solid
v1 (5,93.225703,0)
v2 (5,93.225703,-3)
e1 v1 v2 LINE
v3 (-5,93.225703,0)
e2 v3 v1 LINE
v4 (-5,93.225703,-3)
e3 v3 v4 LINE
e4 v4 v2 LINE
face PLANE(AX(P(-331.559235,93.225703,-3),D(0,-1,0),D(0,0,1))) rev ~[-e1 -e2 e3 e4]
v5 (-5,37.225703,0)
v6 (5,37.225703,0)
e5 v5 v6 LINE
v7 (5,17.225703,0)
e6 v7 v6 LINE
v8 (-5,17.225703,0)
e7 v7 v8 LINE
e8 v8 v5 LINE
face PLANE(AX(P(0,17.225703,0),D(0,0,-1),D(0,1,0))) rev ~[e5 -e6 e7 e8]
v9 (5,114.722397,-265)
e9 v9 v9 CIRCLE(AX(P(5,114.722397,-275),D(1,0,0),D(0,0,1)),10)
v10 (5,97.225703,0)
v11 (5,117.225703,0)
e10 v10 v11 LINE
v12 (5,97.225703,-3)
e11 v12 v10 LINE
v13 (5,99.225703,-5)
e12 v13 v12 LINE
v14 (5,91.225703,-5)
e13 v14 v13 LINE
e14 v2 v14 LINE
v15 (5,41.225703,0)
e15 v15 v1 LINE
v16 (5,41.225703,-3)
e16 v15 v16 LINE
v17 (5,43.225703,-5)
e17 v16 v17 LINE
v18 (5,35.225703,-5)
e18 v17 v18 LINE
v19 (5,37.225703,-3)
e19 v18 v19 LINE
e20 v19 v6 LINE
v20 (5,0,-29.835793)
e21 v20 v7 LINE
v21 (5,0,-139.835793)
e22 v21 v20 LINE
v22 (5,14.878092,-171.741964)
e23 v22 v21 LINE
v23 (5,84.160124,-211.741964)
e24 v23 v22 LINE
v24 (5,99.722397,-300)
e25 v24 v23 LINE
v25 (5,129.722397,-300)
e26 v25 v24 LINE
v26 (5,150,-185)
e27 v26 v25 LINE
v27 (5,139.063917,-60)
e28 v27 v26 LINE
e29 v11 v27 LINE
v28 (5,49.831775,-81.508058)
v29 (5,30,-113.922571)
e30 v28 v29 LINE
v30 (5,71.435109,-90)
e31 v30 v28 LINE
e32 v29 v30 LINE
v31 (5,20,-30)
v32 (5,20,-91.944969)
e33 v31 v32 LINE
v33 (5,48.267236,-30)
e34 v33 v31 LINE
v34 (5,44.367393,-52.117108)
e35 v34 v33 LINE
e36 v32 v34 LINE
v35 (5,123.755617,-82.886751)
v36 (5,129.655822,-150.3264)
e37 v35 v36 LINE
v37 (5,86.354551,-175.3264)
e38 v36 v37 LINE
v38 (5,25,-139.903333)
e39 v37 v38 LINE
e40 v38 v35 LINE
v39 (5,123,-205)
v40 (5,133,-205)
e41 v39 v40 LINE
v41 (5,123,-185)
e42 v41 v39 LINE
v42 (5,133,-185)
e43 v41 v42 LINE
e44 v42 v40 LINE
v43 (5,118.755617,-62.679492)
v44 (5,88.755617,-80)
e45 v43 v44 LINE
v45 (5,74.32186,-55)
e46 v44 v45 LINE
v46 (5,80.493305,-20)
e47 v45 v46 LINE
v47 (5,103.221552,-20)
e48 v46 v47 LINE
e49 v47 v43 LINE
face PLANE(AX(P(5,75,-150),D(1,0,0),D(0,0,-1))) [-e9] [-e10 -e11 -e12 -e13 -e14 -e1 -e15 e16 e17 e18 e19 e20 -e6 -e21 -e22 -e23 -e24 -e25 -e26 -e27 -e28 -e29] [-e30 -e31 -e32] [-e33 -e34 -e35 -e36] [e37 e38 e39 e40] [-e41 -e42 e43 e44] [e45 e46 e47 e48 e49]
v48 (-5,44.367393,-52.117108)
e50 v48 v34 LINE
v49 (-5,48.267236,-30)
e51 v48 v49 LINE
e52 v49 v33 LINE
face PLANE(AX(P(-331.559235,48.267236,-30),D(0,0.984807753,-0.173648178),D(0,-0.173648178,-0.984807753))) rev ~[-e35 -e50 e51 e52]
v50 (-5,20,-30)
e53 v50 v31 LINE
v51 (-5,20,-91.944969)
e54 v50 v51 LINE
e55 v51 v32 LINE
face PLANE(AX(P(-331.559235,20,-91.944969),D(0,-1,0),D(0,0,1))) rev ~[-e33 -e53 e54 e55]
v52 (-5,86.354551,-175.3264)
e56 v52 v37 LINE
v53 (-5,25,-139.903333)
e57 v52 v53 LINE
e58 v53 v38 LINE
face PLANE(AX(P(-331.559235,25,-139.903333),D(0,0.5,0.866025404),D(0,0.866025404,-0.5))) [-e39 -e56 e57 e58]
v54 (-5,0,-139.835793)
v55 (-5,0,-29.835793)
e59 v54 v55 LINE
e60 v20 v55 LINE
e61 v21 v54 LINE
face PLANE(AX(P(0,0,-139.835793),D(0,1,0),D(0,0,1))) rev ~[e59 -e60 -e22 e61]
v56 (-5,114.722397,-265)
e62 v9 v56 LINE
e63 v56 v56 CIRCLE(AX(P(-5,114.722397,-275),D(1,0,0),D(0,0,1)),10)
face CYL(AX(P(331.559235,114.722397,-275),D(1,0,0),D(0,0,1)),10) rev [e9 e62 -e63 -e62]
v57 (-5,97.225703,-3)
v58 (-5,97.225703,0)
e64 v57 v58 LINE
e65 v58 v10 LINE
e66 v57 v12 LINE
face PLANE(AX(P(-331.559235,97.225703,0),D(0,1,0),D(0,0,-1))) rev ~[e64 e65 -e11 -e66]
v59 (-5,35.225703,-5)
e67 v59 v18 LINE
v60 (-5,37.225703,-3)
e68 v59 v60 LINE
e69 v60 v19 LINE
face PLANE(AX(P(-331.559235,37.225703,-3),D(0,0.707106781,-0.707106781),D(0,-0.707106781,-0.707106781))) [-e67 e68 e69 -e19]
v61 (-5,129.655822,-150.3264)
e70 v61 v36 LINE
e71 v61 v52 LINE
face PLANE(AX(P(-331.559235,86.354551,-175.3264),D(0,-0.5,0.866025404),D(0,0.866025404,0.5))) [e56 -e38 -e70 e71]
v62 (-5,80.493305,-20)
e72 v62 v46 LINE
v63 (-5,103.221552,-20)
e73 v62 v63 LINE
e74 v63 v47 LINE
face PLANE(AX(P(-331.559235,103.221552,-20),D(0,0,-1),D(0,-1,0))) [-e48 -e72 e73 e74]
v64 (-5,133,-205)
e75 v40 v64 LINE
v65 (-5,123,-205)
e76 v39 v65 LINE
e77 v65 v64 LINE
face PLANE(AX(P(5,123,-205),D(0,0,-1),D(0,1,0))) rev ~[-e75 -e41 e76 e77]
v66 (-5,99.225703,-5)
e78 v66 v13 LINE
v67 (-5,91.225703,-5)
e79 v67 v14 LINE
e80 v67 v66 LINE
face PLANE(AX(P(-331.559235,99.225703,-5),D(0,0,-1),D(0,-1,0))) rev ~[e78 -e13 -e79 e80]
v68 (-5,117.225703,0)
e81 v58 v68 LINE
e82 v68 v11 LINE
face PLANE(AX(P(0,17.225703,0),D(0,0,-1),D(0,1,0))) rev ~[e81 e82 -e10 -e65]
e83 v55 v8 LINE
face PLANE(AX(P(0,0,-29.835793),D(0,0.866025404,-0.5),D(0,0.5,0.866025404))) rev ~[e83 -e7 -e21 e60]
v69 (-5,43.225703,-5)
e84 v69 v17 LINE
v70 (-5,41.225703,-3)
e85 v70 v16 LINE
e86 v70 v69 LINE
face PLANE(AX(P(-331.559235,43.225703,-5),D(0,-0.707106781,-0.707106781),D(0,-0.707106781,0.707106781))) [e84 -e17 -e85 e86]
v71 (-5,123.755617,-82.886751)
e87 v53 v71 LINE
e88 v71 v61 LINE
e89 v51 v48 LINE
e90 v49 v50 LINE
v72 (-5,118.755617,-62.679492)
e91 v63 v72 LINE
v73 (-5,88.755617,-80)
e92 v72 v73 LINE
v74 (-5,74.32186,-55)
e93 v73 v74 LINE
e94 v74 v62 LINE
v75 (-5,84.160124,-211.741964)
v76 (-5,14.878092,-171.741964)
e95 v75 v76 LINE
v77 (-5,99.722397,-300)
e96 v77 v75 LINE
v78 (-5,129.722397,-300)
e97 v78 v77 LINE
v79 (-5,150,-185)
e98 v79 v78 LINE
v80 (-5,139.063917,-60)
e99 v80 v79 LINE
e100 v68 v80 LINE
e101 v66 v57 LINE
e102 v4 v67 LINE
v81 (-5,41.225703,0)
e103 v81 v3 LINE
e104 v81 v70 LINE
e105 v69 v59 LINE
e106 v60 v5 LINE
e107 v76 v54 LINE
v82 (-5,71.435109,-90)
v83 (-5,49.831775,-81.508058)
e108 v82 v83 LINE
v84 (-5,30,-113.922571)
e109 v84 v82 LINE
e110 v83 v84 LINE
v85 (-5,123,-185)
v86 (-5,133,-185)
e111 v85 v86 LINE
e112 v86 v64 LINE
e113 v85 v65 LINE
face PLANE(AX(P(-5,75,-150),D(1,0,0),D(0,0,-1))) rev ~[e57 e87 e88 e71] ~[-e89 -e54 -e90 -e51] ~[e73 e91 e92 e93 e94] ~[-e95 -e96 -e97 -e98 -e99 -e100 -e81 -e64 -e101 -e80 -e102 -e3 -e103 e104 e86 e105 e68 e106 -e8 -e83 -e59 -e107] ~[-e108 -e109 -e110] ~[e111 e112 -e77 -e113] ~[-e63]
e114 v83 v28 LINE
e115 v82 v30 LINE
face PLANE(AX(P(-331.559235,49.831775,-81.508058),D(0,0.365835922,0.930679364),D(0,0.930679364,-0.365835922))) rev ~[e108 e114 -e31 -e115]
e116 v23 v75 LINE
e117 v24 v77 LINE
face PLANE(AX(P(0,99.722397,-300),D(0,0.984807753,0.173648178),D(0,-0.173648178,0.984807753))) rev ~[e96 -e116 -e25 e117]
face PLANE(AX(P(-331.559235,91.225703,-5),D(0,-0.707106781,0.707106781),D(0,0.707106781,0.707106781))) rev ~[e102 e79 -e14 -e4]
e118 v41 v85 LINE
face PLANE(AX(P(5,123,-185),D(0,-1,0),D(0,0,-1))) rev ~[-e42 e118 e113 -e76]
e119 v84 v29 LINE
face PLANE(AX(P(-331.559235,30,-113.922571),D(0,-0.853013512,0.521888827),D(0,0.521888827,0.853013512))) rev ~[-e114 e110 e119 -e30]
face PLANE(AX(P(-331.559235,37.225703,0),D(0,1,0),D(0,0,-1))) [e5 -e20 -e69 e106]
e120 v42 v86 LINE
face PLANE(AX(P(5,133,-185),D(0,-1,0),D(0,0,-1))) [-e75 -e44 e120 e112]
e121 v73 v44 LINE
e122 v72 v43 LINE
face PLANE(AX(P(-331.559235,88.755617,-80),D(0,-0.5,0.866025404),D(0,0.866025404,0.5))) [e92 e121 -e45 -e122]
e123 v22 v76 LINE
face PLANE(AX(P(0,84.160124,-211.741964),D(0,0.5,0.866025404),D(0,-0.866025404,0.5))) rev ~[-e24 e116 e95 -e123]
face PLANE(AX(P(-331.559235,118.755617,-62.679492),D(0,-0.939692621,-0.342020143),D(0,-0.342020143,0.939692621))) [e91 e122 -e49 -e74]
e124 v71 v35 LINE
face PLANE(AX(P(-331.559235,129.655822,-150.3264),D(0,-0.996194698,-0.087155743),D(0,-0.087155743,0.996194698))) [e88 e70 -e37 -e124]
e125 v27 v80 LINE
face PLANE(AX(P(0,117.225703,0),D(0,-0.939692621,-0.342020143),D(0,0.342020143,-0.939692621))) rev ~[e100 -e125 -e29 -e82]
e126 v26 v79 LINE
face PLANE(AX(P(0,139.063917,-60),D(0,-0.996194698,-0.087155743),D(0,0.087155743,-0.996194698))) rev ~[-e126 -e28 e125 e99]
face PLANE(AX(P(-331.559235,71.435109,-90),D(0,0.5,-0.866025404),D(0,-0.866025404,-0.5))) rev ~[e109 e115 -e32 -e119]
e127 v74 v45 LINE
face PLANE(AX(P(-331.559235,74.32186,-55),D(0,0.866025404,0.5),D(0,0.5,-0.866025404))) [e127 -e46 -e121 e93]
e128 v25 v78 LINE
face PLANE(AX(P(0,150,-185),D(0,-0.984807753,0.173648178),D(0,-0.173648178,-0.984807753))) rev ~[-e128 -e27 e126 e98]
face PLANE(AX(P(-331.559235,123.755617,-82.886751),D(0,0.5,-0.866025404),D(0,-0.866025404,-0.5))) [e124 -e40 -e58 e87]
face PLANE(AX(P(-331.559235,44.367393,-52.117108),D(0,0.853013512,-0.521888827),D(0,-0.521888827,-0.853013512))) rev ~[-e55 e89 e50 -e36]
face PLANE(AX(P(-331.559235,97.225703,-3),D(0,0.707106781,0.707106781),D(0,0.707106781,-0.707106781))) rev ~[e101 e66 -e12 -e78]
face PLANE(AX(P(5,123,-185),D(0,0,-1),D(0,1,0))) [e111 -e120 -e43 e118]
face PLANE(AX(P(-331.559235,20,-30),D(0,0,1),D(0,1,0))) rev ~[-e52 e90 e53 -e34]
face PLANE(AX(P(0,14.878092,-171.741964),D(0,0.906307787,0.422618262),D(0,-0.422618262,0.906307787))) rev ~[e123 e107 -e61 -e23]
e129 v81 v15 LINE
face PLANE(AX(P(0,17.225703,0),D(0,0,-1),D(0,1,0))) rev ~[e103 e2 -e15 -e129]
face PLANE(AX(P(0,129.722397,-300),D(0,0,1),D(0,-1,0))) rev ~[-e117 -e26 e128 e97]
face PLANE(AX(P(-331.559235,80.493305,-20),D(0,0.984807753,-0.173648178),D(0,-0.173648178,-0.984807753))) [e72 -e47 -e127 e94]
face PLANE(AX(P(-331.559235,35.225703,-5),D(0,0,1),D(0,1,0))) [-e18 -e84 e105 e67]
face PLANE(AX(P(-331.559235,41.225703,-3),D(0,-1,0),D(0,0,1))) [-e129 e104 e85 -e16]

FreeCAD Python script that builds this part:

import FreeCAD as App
import Part
import Sketcher

V = App.Vector
Q = App.Units.Quantity

doc = App.newDocument("Part")
body = doc.addObject("PartDesign::Body", "Body")

sketch1 = doc.addObject("Sketcher::SketchObject", "Sketch")
body.addObject(sketch1)
sketch1.AttachmentSupport = (doc.YZ_Plane, [""])
sketch1.MapMode = "FlatFace"
sketch1.addGeometry([
    Part.LineSegment(V(150, 0, 0), V(0, 0, 0)),
    Part.LineSegment(V(0, 0, 0), V(0, -300, 0)),
    Part.LineSegment(V(0, -300, 0), V(150, -300, 0)),
    Part.LineSegment(V(150, -300, 0), V(150, 0, 0)),
], False)
sketch1.addConstraint([
    Sketcher.Constraint("Coincident", 0, 2, 1, 1),
    Sketcher.Constraint("Coincident", 1, 2, 2, 1),
    Sketcher.Constraint("Coincident", 2, 2, 3, 1),
    Sketcher.Constraint("Coincident", 3, 2, 0, 1),
    Sketcher.Constraint("Horizontal", 0),
    Sketcher.Constraint("Vertical", 1),
    Sketcher.Constraint("Horizontal", 2),
    Sketcher.Constraint("Vertical", 3),
    Sketcher.Constraint("Coincident", 0, 2, -1, 1),
    Sketcher.Constraint("DistanceX", 0, 2, 0, 1, 150.0),
    Sketcher.Constraint("DistanceY", 1, 2, 1, 1, 300.0),
])
pad1 = doc.addObject("PartDesign::Pad", "Pad")
body.addObject(pad1)
pad1.Profile = sketch1
pad1.Length = 10
pad1.Midplane = True

sketch2 = doc.addObject("Sketcher::SketchObject", "Sketch001")
body.addObject(sketch2)
sketch2.AttachmentSupport = (doc.YZ_Plane, [""])
sketch2.MapMode = "FlatFace"
sketch2.addGeometry([
    Part.LineSegment(V(184.556, 34.556, 0), V(-34.556, 34.556, 0)),
    Part.LineSegment(V(-34.556, 34.556, 0), V(-34.556, -334.556, 0)),
    Part.LineSegment(V(-34.556, -334.556, 0), V(184.556, -334.556, 0)),
    Part.LineSegment(V(184.556, -334.556, 0), V(184.556, 34.556, 0)),
    Part.LineSegment(V(17.225703, 0, 0), V(117.225703, 0, 0)),
    Part.LineSegment(V(117.225703, 0, 0), V(139.063917, -60, 0)),
    Part.LineSegment(V(139.063917, -60, 0), V(150, -185, 0)),
    Part.LineSegment(V(150, -185, 0), V(129.722397, -300, 0)),
    Part.LineSegment(V(129.722397, -300, 0), V(99.722397, -300, 0)),
    Part.LineSegment(V(99.722397, -300, 0), V(84.160124, -211.741964, 0)),
    Part.LineSegment(V(84.160124, -211.741964, 0), V(14.878092, -171.741964, 0)),
    Part.LineSegment(V(14.878092, -171.741964, 0), V(0, -139.835793, 0)),
    Part.LineSegment(V(0, -139.835793, 0), V(0, -29.835793, 0)),
    Part.LineSegment(V(0, -29.835793, 0), V(17.225703, 0, 0)),
], False)
sketch2.addConstraint([
    Sketcher.Constraint("Coincident", 0, 2, 1, 1),
    Sketcher.Constraint("Coincident", 1, 2, 2, 1),
    Sketcher.Constraint("Coincident", 2, 2, 3, 1),
    Sketcher.Constraint("Coincident", 3, 2, 0, 1),
    Sketcher.Constraint("Coincident", 4, 2, 5, 1),
    Sketcher.Constraint("Coincident", 5, 2, 6, 1),
    Sketcher.Constraint("Coincident", 6, 2, 7, 1),
    Sketcher.Constraint("Coincident", 7, 2, 8, 1),
    Sketcher.Constraint("Coincident", 8, 2, 9, 1),
    Sketcher.Constraint("Coincident", 9, 2, 10, 1),
    Sketcher.Constraint("Coincident", 10, 2, 11, 1),
    Sketcher.Constraint("Coincident", 11, 2, 12, 1),
    Sketcher.Constraint("Coincident", 12, 2, 13, 1),
    Sketcher.Constraint("Coincident", 13, 2, 4, 1),
    Sketcher.Constraint("Horizontal", 0),
    Sketcher.Constraint("Vertical", 1),
    Sketcher.Constraint("Horizontal", 2),
    Sketcher.Constraint("Vertical", 3),
    Sketcher.Constraint("Horizontal", 4),
    Sketcher.Constraint("Horizontal", 8),
    Sketcher.Constraint("Vertical", 12),
    Sketcher.Constraint("PointOnObject", 4, 2, -1),
    Sketcher.Constraint("PointOnObject", 11, 2, -2),
    Sketcher.Constraint("Perpendicular", 10, 13),
    Sketcher.Constraint("DistanceX", 4, 1, 4, 2, 100.0),
    Sketcher.Constraint("DistanceX", 8, 2, 8, 1, 30.0),
    Sketcher.Constraint("DistanceY", 12, 1, 12, 2, 110.0),
    Sketcher.Constraint("Angle", 5, Q("-70 deg")),
    Sketcher.Constraint("Angle", 6, Q("-85 deg")),
    Sketcher.Constraint("Angle", 7, Q("-100 deg")),
    Sketcher.Constraint("Angle", 9, Q("100 deg")),
    Sketcher.Constraint("Angle", 10, Q("150 deg")),
    Sketcher.Constraint("Angle", 11, Q("115 deg")),
    Sketcher.Constraint("Distance", 10, 80.0),
    Sketcher.Constraint("DistanceY", 5, 2, -1, 1, 60.0),
    Sketcher.Constraint("DistanceX", -1, 1, 6, 2, 150.0),
    Sketcher.Constraint("DistanceY", 6, 2, -1, 1, 185.0),
    Sketcher.Constraint("DistanceY", 7, 2, -1, 1, 300.0),
    Sketcher.Constraint("DistanceX", 0, 2, 0, 1, 219.112),
    Sketcher.Constraint("DistanceY", 1, 2, 1, 1, 369.112),
    Sketcher.Constraint("DistanceX", 0, 2, -1, 1, 34.556),
    Sketcher.Constraint("DistanceY", -1, 1, 0, 2, 34.556),
])
pocket1 = doc.addObject("PartDesign::Pocket", "Pocket")
body.addObject(pocket1)
pocket1.Profile = sketch2
pocket1.Length = 10
pocket1.Midplane = True

sketch3 = doc.addObject("Sketcher::SketchObject", "Sketch002")
body.addObject(sketch3)
sketch3.AttachmentSupport = (doc.YZ_Plane, [""])
sketch3.MapMode = "FlatFace"
sketch3.AttachmentOffset = App.Placement(V(0, 0, 5), App.Rotation())
sketch3.addGeometry([
    Part.LineSegment(V(103.221552, -20, 0), V(80.493305, -20, 0)),
    Part.LineSegment(V(80.493305, -20, 0), V(74.32186, -55, 0)),
    Part.LineSegment(V(74.32186, -55, 0), V(88.755617, -80, 0)),
    Part.LineSegment(V(88.755617, -80, 0), V(118.755617, -62.679492, 0)),
    Part.LineSegment(V(118.755617, -62.679492, 0), V(103.221552, -20, 0)),
    Part.LineSegment(V(30, -113.922571, 0), V(71.435109, -90, 0)),
    Part.LineSegment(V(71.435109, -90, 0), V(49.831775, -81.508058, 0)),
    Part.LineSegment(V(49.831775, -81.508058, 0), V(30, -113.922571, 0)),
    Part.LineSegment(V(123.755617, -82.886751, 0), V(25, -139.903333, 0)),
    Part.LineSegment(V(25, -139.903333, 0), V(86.354551, -175.3264, 0)),
    Part.LineSegment(V(86.354551, -175.3264, 0), V(129.655822, -150.3264, 0)),
    Part.LineSegment(V(129.655822, -150.3264, 0), V(123.755617, -82.886751, 0)),
    Part.LineSegment(V(20, -30, 0), V(20, -91.944969, 0)),
    Part.LineSegment(V(20, -91.944969, 0), V(44.367393, -52.117108, 0)),
    Part.LineSegment(V(44.367393, -52.117108, 0), V(48.267236, -30, 0)),
    Part.LineSegment(V(48.267236, -30, 0), V(20, -30, 0)),
], False)
sketch3.addConstraint([
    Sketcher.Constraint("Coincident", 0, 2, 1, 1),
    Sketcher.Constraint("Coincident", 1, 2, 2, 1),
    Sketcher.Constraint("Coincident", 2, 2, 3, 1),
    Sketcher.Constraint("Coincident", 3, 2, 4, 1),
    Sketcher.Constraint("Coincident", 4, 2, 0, 1),
    Sketcher.Constraint("Coincident", 5, 2, 6, 1),
    Sketcher.Constraint("Coincident", 6, 2, 7, 1),
    Sketcher.Constraint("Coincident", 7, 2, 5, 1),
    Sketcher.Constraint("Coincident", 8, 2, 9, 1),
    Sketcher.Constraint("Coincident", 9, 2, 10, 1),
    Sketcher.Constraint("Coincident", 10, 2, 11, 1),
    Sketcher.Constraint("Coincident", 11, 2, 8, 1),
    Sketcher.Constraint("Coincident", 12, 2, 13, 1),
    Sketcher.Constraint("Coincident", 13, 2, 14, 1),
    Sketcher.Constraint("Coincident", 14, 2, 15, 1),
    Sketcher.Constraint("Coincident", 15, 2, 12, 1),
    Sketcher.Constraint("Horizontal", 0),
    Sketcher.Constraint("Vertical", 12),
    Sketcher.Constraint("Horizontal", 15),
    Sketcher.Constraint("Perpendicular", 2, 3),
    Sketcher.Constraint("Parallel", 3, 5),
    Sketcher.Constraint("Parallel", 5, 8),
    Sketcher.Constraint("Parallel", 8, 10),
    Sketcher.Constraint("Parallel", 7, 13),
    Sketcher.Constraint("Parallel", 1, 14),
    Sketcher.Constraint("Angle", 1, Q("-100 deg")),
    Sketcher.Constraint("Angle", 2, Q("-60 deg")),
    Sketcher.Constraint("Angle", 4, Q("110 deg")),
    Sketcher.Constraint("Angle", 9, Q("-30 deg")),
    Sketcher.Constraint("Angle", 11, Q("95 deg")),
    Sketcher.Constraint("Distance", 7, 38.0),
    Sketcher.Constraint("Distance", 10, 50.0),
    Sketcher.Constraint("DistanceY", 0, 2, -1, 1, 20.0),
    Sketcher.Constraint("DistanceY", 1, 2, -1, 1, 55.0),
    Sketcher.Constraint("DistanceY", 2, 2, -1, 1, 80.0),
    Sketcher.Constraint("DistanceY", 5, 2, -1, 1, 90.0),
    Sketcher.Constraint("DistanceX", -1, 1, 7, 2, 30.0),
    Sketcher.Constraint("DistanceX", -1, 1, 8, 2, 25.0),
    Sketcher.Constraint("DistanceX", -1, 1, 12, 2, 20.0),
    Sketcher.Constraint("DistanceY", 14, 2, -1, 1, 30.0),
    Sketcher.Constraint("DistanceX", 2, 2, 3, 2, 30.0),
    Sketcher.Constraint("DistanceX", 3, 2, 11, 2, 5.0),
    Sketcher.Constraint("Distance", 14, 22.4583),
    Sketcher.Constraint("DistanceY", 12, 2, 12, 1, 61.944969),
    Sketcher.Constraint("DistanceY", 9, 2, -1, 1, 175.3264),
    Sketcher.Constraint("DistanceY", 7, 2, 12, 2, 21.977602),
    Sketcher.Constraint("DistanceX", 15, 2, 15, 1, 28.267236),
    Sketcher.Constraint("DistanceX", -1, 1, 1, 2, 74.32186),
])
pocket2 = doc.addObject("PartDesign::Pocket", "Pocket001")
body.addObject(pocket2)
pocket2.Profile = sketch3
pocket2.Type = "ThroughAll"
pocket2.Midplane = True

sketch4 = doc.addObject("Sketcher::SketchObject", "Sketch003")
body.addObject(sketch4)
sketch4.AttachmentSupport = (doc.YZ_Plane, [""])
sketch4.MapMode = "FlatFace"
sketch4.AttachmentOffset = App.Placement(V(0, 0, 5), App.Rotation())
sketch4.addGeometry([
    Part.LineSegment(V(97.225703, -3, 0), V(97.225703, 0, 0)),
    Part.LineSegment(V(97.225703, 0, 0), V(93.225703, 0, 0)),
    Part.LineSegment(V(93.225703, 0, 0), V(93.225703, -3, 0)),
    Part.LineSegment(V(93.225703, -3, 0), V(91.225703, -5, 0)),
    Part.LineSegment(V(91.225703, -5, 0), V(99.225703, -5, 0)),
    Part.LineSegment(V(99.225703, -5, 0), V(97.225703, -3, 0)),
    Part.LineSegment(V(41.225703, -3, 0), V(41.225703, 0, 0)),
    Part.LineSegment(V(41.225703, 0, 0), V(37.225703, 0, 0)),
    Part.LineSegment(V(37.225703, 0, 0), V(37.225703, -3, 0)),
    Part.LineSegment(V(37.225703, -3, 0), V(35.225703, -5, 0)),
    Part.LineSegment(V(35.225703, -5, 0), V(43.225703, -5, 0)),
    Part.LineSegment(V(43.225703, -5, 0), V(41.225703, -3, 0)),
], False)
sketch4.addConstraint([
    Sketcher.Constraint("Coincident", 0, 2, 1, 1),
    Sketcher.Constraint("Coincident", 1, 2, 2, 1),
    Sketcher.Constraint("Coincident", 2, 2, 3, 1),
    Sketcher.Constraint("Coincident", 3, 2, 4, 1),
    Sketcher.Constraint("Coincident", 4, 2, 5, 1),
    Sketcher.Constraint("Coincident", 5, 2, 0, 1),
    Sketcher.Constraint("Coincident", 6, 2, 7, 1),
    Sketcher.Constraint("Coincident", 7, 2, 8, 1),
    Sketcher.Constraint("Coincident", 8, 2, 9, 1),
    Sketcher.Constraint("Coincident", 9, 2, 10, 1),
    Sketcher.Constraint("Coincident", 10, 2, 11, 1),
    Sketcher.Constraint("Coincident", 11, 2, 6, 1),
    Sketcher.Constraint("Vertical", 0),
    Sketcher.Constraint("Horizontal", 1),
    Sketcher.Constraint("Vertical", 2),
    Sketcher.Constraint("Horizontal", 4),
    Sketcher.Constraint("Vertical", 6),
    Sketcher.Constraint("Horizontal", 7),
    Sketcher.Constraint("Vertical", 8),
    Sketcher.Constraint("Horizontal", 10),
    Sketcher.Constraint("PointOnObject", 0, 2, -1),
    Sketcher.Constraint("PointOnObject", 6, 2, -1),
    Sketcher.Constraint("Perpendicular", 3, 5),
    Sketcher.Constraint("Perpendicular", 5, 9),
    Sketcher.Constraint("Perpendicular", 9, 11),
    Sketcher.Constraint("Horizontal", 2, 2, 5, 2),
    Sketcher.Constraint("Horizontal", 5, 2, 8, 2),
    Sketcher.Constraint("Horizontal", 4, 2, 9, 2),
    Sketcher.Constraint("Horizontal", 8, 2, 11, 2),
    Sketcher.Constraint("Equal", 1, 7),
    Sketcher.Constraint("Equal", 3, 5),
    Sketcher.Constraint("DistanceX", 1, 2, 1, 1, 4.0),
    Sketcher.Constraint("DistanceX", 4, 1, 4, 2, 8.0),
    Sketcher.Constraint("DistanceY", 0, 1, 0, 2, 3.0),
    Sketcher.Constraint("DistanceX", 6, 2, 3, 2, 50.0),
    Sketcher.Constraint("DistanceX", -1, 1, 0, 2, 97.225703),
])
pocket3 = doc.addObject("PartDesign::Pocket", "Pocket002")
body.addObject(pocket3)
pocket3.Profile = sketch4
pocket3.Type = "ThroughAll"
pocket3.Midplane = True

sketch5 = doc.addObject("Sketcher::SketchObject", "Sketch004")
body.addObject(sketch5)
sketch5.AttachmentSupport = (doc.YZ_Plane, [""])
sketch5.MapMode = "FlatFace"
sketch5.AttachmentOffset = App.Placement(V(0, 0, -5), App.Rotation())
sketch5.addGeometry(Part.Circle(V(114.722397, -275, 0), V(0, 0, 1), 10), False)
sketch5.addConstraint([
    Sketcher.Constraint("Diameter", 0, 20.0),
    Sketcher.Constraint("DistanceY", 0, 3, -1, 1, 275.0),
    Sketcher.Constraint("DistanceX", -1, 1, 0, 3, 114.722397),
])
pocket4 = doc.addObject("PartDesign::Pocket", "Pocket003")
body.addObject(pocket4)
pocket4.Profile = sketch5
pocket4.Type = "ThroughAll"
pocket4.Midplane = True

sketch6 = doc.addObject("Sketcher::SketchObject", "Sketch005")
body.addObject(sketch6)
sketch6.AttachmentSupport = (doc.YZ_Plane, [""])
sketch6.MapMode = "FlatFace"
sketch6.AttachmentOffset = App.Placement(V(0, 0, 5), App.Rotation())
sketch6.addGeometry([
    Part.LineSegment(V(133, -185, 0), V(123, -185, 0)),
    Part.LineSegment(V(123, -185, 0), V(123, -205, 0)),
    Part.LineSegment(V(123, -205, 0), V(133, -205, 0)),
    Part.LineSegment(V(133, -205, 0), V(133, -185, 0)),
], False)
sketch6.addConstraint([
    Sketcher.Constraint("Coincident", 0, 2, 1, 1),
    Sketcher.Constraint("Coincident", 1, 2, 2, 1),
    Sketcher.Constraint("Coincident", 2, 2, 3, 1),
    Sketcher.Constraint("Coincident", 3, 2, 0, 1),
    Sketcher.Constraint("Horizontal", 0),
    Sketcher.Constraint("Vertical", 1),
    Sketcher.Constraint("Horizontal", 2),
    Sketcher.Constraint("Vertical", 3),
    Sketcher.Constraint("DistanceX", 0, 2, 0, 1, 10.0),
    Sketcher.Constraint("DistanceY", 1, 2, 1, 1, 20.0),
    Sketcher.Constraint("DistanceX", -1, 1, 0, 2, 123.0),
    Sketcher.Constraint("DistanceY", 0, 2, -1, 1, 185.0),
])
pocket5 = doc.addObject("PartDesign::Pocket", "Pocket004")
body.addObject(pocket5)
pocket5.Profile = sketch6
pocket5.Length = 49

doc.recompute()
